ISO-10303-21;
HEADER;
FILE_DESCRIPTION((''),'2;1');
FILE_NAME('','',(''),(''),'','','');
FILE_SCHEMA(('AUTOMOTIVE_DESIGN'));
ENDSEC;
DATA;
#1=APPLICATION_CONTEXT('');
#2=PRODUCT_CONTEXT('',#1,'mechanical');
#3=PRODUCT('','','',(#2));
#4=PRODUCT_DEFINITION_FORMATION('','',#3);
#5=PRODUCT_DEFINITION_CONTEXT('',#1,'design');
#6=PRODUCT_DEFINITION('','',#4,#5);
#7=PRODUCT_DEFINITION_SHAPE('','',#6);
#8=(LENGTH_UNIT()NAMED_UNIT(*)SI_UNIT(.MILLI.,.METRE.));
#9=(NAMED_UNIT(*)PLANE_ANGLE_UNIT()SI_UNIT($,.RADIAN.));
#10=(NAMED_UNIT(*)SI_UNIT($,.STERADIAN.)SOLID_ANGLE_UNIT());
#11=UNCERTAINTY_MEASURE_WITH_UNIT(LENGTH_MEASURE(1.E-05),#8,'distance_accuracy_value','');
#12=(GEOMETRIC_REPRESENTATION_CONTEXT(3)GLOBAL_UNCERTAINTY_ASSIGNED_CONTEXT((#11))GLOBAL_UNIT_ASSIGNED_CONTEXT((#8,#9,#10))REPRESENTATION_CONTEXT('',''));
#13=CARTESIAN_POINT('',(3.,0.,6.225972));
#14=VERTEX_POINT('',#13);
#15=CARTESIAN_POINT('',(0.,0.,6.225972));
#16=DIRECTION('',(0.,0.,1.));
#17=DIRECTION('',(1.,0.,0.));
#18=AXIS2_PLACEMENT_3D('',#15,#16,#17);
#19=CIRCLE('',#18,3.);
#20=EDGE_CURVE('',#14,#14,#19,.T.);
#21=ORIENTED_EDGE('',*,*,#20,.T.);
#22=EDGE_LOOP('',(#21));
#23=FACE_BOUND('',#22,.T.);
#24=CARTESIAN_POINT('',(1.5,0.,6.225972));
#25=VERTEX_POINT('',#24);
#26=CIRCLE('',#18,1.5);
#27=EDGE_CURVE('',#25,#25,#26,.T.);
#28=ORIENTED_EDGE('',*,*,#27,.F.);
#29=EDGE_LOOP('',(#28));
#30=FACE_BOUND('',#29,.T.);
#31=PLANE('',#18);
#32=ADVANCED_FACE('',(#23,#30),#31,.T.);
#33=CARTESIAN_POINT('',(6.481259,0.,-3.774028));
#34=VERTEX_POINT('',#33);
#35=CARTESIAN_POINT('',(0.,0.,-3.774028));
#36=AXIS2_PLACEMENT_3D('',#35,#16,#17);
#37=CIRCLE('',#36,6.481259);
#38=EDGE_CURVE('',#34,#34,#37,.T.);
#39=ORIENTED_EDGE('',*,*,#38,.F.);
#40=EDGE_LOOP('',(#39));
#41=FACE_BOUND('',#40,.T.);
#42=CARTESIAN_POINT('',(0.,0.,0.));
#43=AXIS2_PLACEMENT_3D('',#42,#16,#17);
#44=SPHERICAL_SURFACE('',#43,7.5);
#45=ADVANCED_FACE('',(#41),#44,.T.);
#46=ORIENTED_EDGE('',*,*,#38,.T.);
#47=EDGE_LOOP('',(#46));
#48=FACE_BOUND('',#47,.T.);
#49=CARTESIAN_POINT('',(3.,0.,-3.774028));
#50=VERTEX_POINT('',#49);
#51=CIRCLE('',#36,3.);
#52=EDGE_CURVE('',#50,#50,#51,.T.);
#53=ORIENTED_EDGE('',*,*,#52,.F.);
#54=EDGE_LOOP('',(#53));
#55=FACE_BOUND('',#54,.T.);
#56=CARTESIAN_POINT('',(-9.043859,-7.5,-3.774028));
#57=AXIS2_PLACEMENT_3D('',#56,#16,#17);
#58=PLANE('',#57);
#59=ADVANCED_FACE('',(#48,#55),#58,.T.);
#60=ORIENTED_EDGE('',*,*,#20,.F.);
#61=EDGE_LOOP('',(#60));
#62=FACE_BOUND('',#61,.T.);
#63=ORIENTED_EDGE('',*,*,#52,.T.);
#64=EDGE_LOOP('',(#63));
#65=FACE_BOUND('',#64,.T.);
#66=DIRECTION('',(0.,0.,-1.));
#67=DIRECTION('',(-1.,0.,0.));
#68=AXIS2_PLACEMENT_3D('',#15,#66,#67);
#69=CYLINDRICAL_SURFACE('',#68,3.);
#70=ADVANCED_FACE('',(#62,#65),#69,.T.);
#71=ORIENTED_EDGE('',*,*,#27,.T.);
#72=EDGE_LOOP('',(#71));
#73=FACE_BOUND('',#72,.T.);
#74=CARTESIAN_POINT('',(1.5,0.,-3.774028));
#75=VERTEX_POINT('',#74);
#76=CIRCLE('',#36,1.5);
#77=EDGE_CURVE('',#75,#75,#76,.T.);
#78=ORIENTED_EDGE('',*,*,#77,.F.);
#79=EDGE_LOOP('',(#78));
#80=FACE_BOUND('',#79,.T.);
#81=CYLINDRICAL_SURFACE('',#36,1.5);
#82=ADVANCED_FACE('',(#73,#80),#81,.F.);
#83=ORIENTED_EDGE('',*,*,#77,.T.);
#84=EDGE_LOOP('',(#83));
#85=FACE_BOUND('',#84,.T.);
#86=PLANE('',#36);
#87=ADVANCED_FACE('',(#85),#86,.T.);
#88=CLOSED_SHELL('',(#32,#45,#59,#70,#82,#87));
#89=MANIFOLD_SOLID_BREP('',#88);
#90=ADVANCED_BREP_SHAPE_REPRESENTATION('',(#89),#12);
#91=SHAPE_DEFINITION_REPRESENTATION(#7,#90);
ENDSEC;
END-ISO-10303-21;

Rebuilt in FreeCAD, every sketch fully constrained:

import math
import FreeCAD as App
import Part
import Sketcher
from FreeCAD import Vector
Q = App.Units.Quantity


def add_polygon(sketch, points):
    """Adds a closed chain of lines whose ends are joined by coincident constraints."""
    first, n = sketch.GeometryCount, len(points)
    for a, b in zip(points, points[1:] + points[:1]):
        sketch.addGeometry(Part.LineSegment(App.Vector(*a, 0), App.Vector(*b, 0)), False)
    for i in range(n):
        sketch.addConstraint(Sketcher.Constraint("Coincident", first + i, 2, first + (i + 1) % n, 1))

doc = App.newDocument("Part")
body = doc.addObject("PartDesign::Body", "Body")

# Sketch on XZ plane
sketch1 = doc.addObject("Sketcher::SketchObject", "Sketch")
body.addObject(sketch1)
sketch1.AttachmentSupport = (doc.XZ_Plane, [""])
sketch1.MapMode = "FlatFace"
sketch1.addGeometry([
    Part.LineSegment(Vector(-8, 0, 0), Vector(8, 0, 0)),
    Part.ArcOfCircle(Part.Circle(Vector(0, 0, 0), Vector(0, 0, 1), 8), math.radians(180), math.radians(360)),
], False)
sketch1.addConstraint([
    Sketcher.Constraint("Coincident", 0, 1, 1, 1),
    Sketcher.Constraint("Coincident", 1, 2, 0, 2),
    Sketcher.Constraint("Horizontal", 0),
    Sketcher.Constraint("Coincident", 1, 3, -1, 1),
    Sketcher.Constraint("PointOnObject", 0, 1, -1),
    Sketcher.Constraint("Radius", 1, Q("7.5 mm")),
])
revolution = doc.addObject("PartDesign::Revolution", "Revolution")
body.addObject(revolution)
revolution.Profile = sketch1
revolution.ReferenceAxis = (sketch1, ["H_Axis"])
revolution.Angle = 360

# Sketch on XZ plane
sketch2 = doc.addObject("Sketcher::SketchObject", "Sketch001")
body.addObject(sketch2)
sketch2.AttachmentSupport = (doc.XZ_Plane, [""])
sketch2.MapMode = "FlatFace"
add_polygon(sketch2, [(-9, -4), (-9, 8), (9, 8), (9, -4)])  # lines 0-3
sketch2.addConstraint([
    Sketcher.Constraint("Vertical", 0),
    Sketcher.Constraint("Horizontal", 1),
    Sketcher.Constraint("Vertical", 2),
    Sketcher.Constraint("Horizontal", 3),
    Sketcher.Constraint("DistanceX", 1, 1, 1, 2, Q("18.087718 mm")),
    Sketcher.Constraint("DistanceY", 0, 1, 0, 2, Q("11.368108 mm")),
    Sketcher.Constraint("DistanceX", 0, 2, -1, 1, Q("9.043859 mm")),
    Sketcher.Constraint("DistanceY", -1, 1, 0, 2, Q("7.59408 mm")),
])
pocket1 = doc.addObject("PartDesign::Pocket", "Pocket")
body.addObject(pocket1)
pocket1.Profile = sketch2
pocket1.Type = "ThroughAll"
pocket1.Midplane = True

# Sketch on XY plane
sketch3 = doc.addObject("Sketcher::SketchObject", "Sketch002")
body.addObject(sketch3)
sketch3.AttachmentSupport = (doc.XY_Plane, [""])
sketch3.MapMode = "FlatFace"
sketch3.AttachmentOffset = App.Placement(Vector(0, 0, -3.774028), App.Rotation())
sketch3.addGeometry(Part.Circle(Vector(0, 0, 0), Vector(0, 0, 1), 3), False)
sketch3.addConstraint([
    Sketcher.Constraint("Coincident", 0, 3, -1, 1),
    Sketcher.Constraint("Diameter", 0, Q("6 mm")),
])
pad1 = doc.addObject("PartDesign::Pad", "Pad")
body.addObject(pad1)
pad1.Profile = sketch3
pad1.Length = 10

# Sketch on XY plane
sketch4 = doc.addObject("Sketcher::SketchObject", "Sketch003")
body.addObject(sketch4)
sketch4.AttachmentSupport = (doc.XY_Plane, [""])
sketch4.MapMode = "FlatFace"
sketch4.AttachmentOffset = App.Placement(Vector(0, 0, 6.225972), App.Rotation())
sketch4.addGeometry(Part.Circle(Vector(0, 0, 0), Vector(0, 0, 1), 1.5), False)
sketch4.addConstraint([
    Sketcher.Constraint("Coincident", 0, 3, -1, 1),
    Sketcher.Constraint("Diameter", 0, Q("3 mm")),
])
pocket2 = doc.addObject("PartDesign::Pocket", "Pocket001")
body.addObject(pocket2)
pocket2.Profile = sketch4
pocket2.Length = 10

doc.recompute()
